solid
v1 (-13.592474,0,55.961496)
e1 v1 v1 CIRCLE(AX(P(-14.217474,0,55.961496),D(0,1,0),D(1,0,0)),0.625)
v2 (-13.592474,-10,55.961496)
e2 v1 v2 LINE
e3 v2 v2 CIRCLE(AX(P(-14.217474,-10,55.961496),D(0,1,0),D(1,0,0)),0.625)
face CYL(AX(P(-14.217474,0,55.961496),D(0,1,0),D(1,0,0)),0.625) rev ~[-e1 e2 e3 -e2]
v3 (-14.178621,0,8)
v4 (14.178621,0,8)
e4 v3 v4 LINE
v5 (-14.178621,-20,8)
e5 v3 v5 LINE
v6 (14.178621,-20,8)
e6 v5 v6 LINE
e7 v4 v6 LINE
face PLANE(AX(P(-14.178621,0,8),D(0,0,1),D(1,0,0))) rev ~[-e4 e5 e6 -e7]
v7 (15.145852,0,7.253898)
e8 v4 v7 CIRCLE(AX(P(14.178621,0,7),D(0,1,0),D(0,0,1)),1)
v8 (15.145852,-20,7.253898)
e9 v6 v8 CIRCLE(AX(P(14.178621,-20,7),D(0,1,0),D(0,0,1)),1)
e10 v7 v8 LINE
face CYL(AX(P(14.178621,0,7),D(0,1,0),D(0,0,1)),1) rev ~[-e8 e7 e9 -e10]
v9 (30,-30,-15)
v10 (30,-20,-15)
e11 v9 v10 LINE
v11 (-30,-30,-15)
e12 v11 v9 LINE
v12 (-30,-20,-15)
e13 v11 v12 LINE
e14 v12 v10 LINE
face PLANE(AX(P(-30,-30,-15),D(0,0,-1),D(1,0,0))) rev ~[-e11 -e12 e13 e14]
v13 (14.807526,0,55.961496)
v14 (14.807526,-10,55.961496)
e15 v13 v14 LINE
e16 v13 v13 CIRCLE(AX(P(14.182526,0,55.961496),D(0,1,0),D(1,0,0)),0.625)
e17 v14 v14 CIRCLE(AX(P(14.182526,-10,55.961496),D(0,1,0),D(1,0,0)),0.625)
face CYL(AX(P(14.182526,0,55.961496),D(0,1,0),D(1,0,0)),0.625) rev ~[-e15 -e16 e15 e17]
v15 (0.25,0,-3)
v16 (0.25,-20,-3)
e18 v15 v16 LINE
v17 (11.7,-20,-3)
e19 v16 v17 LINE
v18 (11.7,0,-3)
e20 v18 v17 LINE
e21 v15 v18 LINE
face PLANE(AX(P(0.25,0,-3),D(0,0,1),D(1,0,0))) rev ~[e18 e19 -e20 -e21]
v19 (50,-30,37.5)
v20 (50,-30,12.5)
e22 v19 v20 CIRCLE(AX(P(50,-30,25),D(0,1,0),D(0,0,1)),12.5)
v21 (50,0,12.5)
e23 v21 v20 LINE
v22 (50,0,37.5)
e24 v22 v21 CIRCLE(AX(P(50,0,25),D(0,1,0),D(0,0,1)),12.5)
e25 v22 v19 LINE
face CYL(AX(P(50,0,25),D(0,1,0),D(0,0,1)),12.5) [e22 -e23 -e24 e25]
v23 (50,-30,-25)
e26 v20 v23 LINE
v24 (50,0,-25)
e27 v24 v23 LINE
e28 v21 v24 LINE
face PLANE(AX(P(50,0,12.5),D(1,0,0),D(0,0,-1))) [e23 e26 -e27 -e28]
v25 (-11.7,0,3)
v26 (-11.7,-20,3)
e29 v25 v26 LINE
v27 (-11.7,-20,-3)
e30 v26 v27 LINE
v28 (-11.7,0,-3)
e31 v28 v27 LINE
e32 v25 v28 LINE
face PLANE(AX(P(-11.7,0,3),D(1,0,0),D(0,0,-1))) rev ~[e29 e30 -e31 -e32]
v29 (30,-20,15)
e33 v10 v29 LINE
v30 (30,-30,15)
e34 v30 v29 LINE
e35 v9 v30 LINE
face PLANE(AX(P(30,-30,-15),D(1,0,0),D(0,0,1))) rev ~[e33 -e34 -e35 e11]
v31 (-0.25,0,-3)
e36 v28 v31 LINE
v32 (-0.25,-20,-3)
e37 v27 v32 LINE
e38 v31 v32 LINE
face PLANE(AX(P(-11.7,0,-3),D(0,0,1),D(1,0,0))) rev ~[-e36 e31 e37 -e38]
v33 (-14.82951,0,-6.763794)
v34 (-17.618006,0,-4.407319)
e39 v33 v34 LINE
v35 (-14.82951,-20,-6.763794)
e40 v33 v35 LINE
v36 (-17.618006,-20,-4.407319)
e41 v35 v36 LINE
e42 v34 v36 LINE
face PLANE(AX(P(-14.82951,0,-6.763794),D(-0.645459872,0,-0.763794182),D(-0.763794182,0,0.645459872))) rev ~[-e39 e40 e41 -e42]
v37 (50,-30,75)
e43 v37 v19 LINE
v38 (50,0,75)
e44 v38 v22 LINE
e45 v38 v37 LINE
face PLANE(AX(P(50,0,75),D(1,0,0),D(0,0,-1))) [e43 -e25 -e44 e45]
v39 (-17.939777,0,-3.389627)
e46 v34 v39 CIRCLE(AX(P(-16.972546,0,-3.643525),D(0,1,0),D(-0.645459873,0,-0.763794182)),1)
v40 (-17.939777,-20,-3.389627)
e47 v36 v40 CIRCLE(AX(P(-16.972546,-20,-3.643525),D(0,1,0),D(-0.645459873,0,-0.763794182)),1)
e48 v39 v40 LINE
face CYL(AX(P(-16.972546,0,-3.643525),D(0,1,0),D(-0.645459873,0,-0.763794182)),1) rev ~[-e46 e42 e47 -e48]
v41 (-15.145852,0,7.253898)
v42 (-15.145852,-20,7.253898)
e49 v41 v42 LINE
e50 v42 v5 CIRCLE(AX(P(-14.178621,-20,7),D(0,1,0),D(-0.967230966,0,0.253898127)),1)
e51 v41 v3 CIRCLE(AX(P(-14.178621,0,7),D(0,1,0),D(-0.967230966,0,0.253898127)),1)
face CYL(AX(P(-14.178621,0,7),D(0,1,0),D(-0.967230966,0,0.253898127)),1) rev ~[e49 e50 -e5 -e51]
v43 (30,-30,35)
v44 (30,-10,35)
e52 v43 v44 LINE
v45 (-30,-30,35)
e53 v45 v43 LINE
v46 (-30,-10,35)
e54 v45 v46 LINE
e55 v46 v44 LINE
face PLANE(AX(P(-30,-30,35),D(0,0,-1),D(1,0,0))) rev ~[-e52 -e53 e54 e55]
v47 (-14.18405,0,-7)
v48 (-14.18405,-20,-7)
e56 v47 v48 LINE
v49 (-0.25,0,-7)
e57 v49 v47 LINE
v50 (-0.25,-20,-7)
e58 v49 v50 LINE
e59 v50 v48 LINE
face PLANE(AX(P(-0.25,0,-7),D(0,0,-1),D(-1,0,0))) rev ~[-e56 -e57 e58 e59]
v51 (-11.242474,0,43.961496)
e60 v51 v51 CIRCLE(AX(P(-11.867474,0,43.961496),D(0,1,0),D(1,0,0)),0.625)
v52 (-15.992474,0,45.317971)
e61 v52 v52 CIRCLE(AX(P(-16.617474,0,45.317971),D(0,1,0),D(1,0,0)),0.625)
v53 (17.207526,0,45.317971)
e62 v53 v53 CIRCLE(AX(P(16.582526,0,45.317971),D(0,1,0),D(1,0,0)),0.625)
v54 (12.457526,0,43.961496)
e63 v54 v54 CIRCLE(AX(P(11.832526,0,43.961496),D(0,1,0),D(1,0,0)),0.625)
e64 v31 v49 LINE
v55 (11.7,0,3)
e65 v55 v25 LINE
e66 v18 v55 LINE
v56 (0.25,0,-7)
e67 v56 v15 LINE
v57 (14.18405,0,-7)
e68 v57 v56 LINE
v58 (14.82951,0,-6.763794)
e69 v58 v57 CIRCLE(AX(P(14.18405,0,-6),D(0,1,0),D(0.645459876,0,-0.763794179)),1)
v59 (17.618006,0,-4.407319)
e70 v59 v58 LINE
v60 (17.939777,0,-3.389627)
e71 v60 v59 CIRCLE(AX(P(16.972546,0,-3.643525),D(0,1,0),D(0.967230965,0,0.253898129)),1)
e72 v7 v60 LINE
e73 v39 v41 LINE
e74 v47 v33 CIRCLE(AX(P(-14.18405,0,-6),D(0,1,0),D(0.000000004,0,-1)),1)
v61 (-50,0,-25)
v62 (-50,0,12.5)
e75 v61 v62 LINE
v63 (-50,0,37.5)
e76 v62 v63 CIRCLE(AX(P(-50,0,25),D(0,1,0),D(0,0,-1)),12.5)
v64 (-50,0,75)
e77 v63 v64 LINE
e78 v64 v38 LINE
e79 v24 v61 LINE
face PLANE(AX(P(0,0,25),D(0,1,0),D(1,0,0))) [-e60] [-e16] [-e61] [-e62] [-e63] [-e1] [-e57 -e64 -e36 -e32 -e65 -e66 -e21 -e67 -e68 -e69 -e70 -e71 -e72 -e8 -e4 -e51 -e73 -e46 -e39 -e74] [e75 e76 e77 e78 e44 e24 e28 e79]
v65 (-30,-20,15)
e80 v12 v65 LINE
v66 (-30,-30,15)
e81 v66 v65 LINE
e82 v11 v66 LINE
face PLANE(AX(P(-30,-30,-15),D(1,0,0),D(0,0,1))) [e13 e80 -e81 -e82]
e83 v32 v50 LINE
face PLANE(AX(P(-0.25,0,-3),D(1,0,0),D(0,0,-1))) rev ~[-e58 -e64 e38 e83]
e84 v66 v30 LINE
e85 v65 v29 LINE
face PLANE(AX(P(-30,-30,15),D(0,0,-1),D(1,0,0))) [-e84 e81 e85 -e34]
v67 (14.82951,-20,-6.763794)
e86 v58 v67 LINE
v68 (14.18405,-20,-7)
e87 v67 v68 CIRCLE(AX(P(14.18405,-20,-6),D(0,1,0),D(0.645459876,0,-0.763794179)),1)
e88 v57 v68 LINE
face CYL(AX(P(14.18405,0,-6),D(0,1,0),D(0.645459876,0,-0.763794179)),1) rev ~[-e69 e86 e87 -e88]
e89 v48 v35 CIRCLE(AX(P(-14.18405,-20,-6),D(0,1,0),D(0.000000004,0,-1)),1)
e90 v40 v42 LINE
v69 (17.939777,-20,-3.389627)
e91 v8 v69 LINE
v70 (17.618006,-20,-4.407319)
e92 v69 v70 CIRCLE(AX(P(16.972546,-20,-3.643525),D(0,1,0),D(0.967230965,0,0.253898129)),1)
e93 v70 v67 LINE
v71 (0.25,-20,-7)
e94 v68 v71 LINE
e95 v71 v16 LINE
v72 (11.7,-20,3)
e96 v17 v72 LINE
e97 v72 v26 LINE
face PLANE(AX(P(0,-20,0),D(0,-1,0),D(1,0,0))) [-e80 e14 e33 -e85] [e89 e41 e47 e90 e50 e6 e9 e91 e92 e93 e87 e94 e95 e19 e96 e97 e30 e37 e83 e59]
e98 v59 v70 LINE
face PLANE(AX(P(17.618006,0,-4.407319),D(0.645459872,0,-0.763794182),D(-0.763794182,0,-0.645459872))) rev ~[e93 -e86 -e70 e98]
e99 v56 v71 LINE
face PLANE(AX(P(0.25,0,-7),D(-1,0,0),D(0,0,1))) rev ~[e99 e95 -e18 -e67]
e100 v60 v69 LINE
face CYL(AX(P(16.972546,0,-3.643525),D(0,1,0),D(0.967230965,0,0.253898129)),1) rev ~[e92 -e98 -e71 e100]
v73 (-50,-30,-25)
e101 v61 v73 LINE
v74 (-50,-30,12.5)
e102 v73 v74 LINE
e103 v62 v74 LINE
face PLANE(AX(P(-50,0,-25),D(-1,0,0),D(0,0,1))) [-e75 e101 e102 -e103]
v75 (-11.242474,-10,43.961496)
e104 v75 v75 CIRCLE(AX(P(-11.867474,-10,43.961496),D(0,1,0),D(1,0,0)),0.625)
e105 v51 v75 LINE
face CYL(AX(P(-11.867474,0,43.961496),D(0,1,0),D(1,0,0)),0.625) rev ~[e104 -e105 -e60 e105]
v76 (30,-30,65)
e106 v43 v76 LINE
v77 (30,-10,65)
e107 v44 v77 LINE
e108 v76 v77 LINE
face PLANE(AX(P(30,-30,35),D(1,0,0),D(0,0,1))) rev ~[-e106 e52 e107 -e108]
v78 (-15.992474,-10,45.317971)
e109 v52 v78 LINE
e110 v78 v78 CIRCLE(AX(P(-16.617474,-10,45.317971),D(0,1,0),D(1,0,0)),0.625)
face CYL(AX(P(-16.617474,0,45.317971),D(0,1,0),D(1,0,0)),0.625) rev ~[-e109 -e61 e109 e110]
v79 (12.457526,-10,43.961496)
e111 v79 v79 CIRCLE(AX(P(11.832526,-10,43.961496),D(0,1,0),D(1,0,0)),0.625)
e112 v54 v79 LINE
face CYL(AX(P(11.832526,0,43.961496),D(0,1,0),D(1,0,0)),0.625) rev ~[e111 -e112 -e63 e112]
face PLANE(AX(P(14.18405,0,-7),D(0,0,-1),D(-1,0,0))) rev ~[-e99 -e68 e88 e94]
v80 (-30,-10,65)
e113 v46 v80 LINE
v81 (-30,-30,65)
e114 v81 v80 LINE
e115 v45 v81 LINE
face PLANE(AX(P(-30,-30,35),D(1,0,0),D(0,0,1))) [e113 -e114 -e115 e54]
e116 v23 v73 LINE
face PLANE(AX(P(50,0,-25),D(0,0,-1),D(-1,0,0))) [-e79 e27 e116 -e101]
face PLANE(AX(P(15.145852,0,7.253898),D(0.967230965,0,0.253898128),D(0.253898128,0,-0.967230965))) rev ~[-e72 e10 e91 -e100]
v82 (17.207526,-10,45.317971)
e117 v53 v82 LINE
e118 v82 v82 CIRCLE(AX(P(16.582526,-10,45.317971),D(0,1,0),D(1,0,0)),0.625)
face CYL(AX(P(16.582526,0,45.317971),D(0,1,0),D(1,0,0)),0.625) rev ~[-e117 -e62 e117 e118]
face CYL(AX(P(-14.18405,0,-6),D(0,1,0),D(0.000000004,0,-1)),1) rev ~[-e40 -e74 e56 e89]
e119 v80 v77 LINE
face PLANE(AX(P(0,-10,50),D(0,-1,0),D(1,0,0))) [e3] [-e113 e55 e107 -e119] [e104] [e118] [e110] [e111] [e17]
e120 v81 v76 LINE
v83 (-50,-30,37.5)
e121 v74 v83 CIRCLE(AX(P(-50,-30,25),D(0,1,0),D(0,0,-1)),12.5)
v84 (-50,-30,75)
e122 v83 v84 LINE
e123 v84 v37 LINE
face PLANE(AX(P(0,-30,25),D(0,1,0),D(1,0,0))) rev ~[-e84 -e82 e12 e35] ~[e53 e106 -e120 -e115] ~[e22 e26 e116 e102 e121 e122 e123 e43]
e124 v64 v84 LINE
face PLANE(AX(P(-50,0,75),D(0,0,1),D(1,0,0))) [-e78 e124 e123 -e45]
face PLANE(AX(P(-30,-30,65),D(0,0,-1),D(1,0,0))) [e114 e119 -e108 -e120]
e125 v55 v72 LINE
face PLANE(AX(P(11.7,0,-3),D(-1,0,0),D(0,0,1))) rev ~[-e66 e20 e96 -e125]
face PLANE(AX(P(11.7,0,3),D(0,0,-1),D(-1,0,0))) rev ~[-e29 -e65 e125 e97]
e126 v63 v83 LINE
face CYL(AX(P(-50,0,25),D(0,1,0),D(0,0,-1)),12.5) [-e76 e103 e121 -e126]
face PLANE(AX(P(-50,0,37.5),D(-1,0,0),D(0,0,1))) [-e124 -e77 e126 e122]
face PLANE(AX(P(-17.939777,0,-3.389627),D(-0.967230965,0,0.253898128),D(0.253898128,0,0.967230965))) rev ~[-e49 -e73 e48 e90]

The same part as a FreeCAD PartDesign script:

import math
import FreeCAD as App
import Part
import Sketcher

V = App.Vector
Q = App.Units.Quantity


def add_polygon(sketch, points):
    """Adds a closed chain of lines whose ends are joined by coincident constraints."""
    first, n = sketch.GeometryCount, len(points)
    for a, b in zip(points, points[1:] + points[:1]):
        sketch.addGeometry(Part.LineSegment(App.Vector(*a, 0), App.Vector(*b, 0)), False)
    for i in range(n):
        sketch.addConstraint(Sketcher.Constraint("Coincident", first + i, 2, first + (i + 1) % n, 1))

doc = App.newDocument("Part")
body = doc.addObject("PartDesign::Body", "Body")

sketch1 = body.newObject("Sketcher::SketchObject", "Sketch")
sketch1.AttachmentSupport = (doc.getObject("XZ_Plane"), [""])
sketch1.MapMode = "FlatFace"
sketch1.addGeometry([
    Part.LineSegment(V(-50, 75, 0), V(50, 75, 0)),
    Part.LineSegment(V(50, 75, 0), V(50, 38, 0)),
    Part.ArcOfCircle(Part.Circle(V(50, 25, 0), V(0, 0, 1), 12), math.radians(-90), math.radians(90)),
    Part.LineSegment(V(50, 12, 0), V(50, -25, 0)),
    Part.LineSegment(V(50, -25, 0), V(-50, -25, 0)),
    Part.LineSegment(V(-50, -25, 0), V(-50, 12, 0)),
    Part.ArcOfCircle(Part.Circle(V(-50, 25, 0), V(0, 0, 1), 12), math.radians(90), math.radians(270)),
    Part.LineSegment(V(-50, 38, 0), V(-50, 75, 0)),
], False)
sketch1.addConstraint([
    Sketcher.Constraint("Coincident", 0, 2, 1, 1),
    Sketcher.Constraint("Coincident", 1, 2, 2, 2),
    Sketcher.Constraint("Coincident", 2, 1, 3, 1),
    Sketcher.Constraint("Coincident", 3, 2, 4, 1),
    Sketcher.Constraint("Coincident", 4, 2, 5, 1),
    Sketcher.Constraint("Coincident", 5, 2, 6, 2),
    Sketcher.Constraint("Coincident", 6, 1, 7, 1),
    Sketcher.Constraint("Coincident", 7, 2, 0, 1),
    Sketcher.Constraint("Horizontal", 0),
    Sketcher.Constraint("Vertical", 1),
    Sketcher.Constraint("Vertical", 3),
    Sketcher.Constraint("Horizontal", 4),
    Sketcher.Constraint("Vertical", 5),
    Sketcher.Constraint("Vertical", 7),
    Sketcher.Constraint("Equal", 2, 6),
    Sketcher.Constraint("Symmetric", 2, 3, 6, 3, -2),
    Sketcher.Constraint("Vertical", 2, 3, 0, 2),
    Sketcher.Constraint("Vertical", 1, 2, 2, 1),
    Sketcher.Constraint("Vertical", 6, 3, 4, 2),
    Sketcher.Constraint("Vertical", 5, 2, 6, 1),
    Sketcher.Constraint("Equal", 1, 3),
    Sketcher.Constraint("Radius", 2, Q("12.5 mm")),
    Sketcher.Constraint("DistanceX", 0, 1, 0, 2, Q("100 mm")),
    Sketcher.Constraint("DistanceY", 1, 2, 1, 1, Q("37.5 mm")),
    Sketcher.Constraint("DistanceY", -1, 1, 2, 3, Q("25 mm")),
])
pad1 = body.newObject("PartDesign::Pad", "Pad")
pad1.Profile = sketch1
pad1.Length = 30

sketch2 = body.newObject("Sketcher::SketchObject", "Sketch001")
sketch2.AttachmentSupport = (doc.getObject("XZ_Plane"), [""])
sketch2.MapMode = "FlatFace"
sketch2.addGeometry([
    Part.LineSegment(V(-14.2, 8, 0), V(14.2, 8, 0)),
    Part.ArcOfCircle(Part.Circle(V(14.2, 7, 0), V(0, 0, 1), 1), math.radians(15), math.radians(90)),
    Part.LineSegment(V(15.1, 7.3, 0), V(17.9, -3.4, 0)),
    Part.ArcOfCircle(Part.Circle(V(17, -3.6, 0), V(0, 0, 1), 1), math.radians(-50), math.radians(15)),
    Part.LineSegment(V(17.6, -4.4, 0), V(14.8, -6.8, 0)),
    Part.ArcOfCircle(Part.Circle(V(14.2, -6, 0), V(0, 0, 1), 1), math.radians(-90), math.radians(-50)),
    Part.LineSegment(V(14.2, -7, 0), V(0.2, -7, 0)),
    Part.LineSegment(V(0.2, -7, 0), V(0.2, -3, 0)),
    Part.LineSegment(V(0.2, -3, 0), V(11.7, -3, 0)),
    Part.LineSegment(V(11.7, -3, 0), V(11.7, 3, 0)),
    Part.LineSegment(V(11.7, 3, 0), V(-11.7, 3, 0)),
    Part.LineSegment(V(-11.7, 3, 0), V(-11.7, -3, 0)),
    Part.LineSegment(V(-11.7, -3, 0), V(-0.2, -3, 0)),
    Part.LineSegment(V(-0.2, -3, 0), V(-0.2, -7, 0)),
    Part.LineSegment(V(-0.2, -7, 0), V(-14.2, -7, 0)),
    Part.ArcOfCircle(Part.Circle(V(-14.2, -6, 0), V(0, 0, 1), 1), math.radians(-130), math.radians(-90)),
    Part.LineSegment(V(-14.8, -6.8, 0), V(-17.6, -4.4, 0)),
    Part.ArcOfCircle(Part.Circle(V(-17, -3.6, 0), V(0, 0, 1), 1), math.radians(165), math.radians(230)),
    Part.LineSegment(V(-17.9, -3.4, 0), V(-15.1, 7.3, 0)),
    Part.ArcOfCircle(Part.Circle(V(-14.2, 7, 0), V(0, 0, 1), 1), math.radians(90), math.radians(165)),
], False)
sketch2.addConstraint([
    Sketcher.Constraint("Tangent", 0, 2, 1, 2),
    Sketcher.Constraint("Tangent", 1, 1, 2, 1),
    Sketcher.Constraint("Tangent", 2, 2, 3, 2),
    Sketcher.Constraint("Tangent", 3, 1, 4, 1),
    Sketcher.Constraint("Tangent", 4, 2, 5, 2),
    Sketcher.Constraint("Tangent", 5, 1, 6, 1),
    Sketcher.Constraint("Coincident", 6, 2, 7, 1),
    Sketcher.Constraint("Coincident", 7, 2, 8, 1),
    Sketcher.Constraint("Coincident", 8, 2, 9, 1),
    Sketcher.Constraint("Coincident", 9, 2, 10, 1),
    Sketcher.Constraint("Coincident", 10, 2, 11, 1),
    Sketcher.Constraint("Coincident", 11, 2, 12, 1),
    Sketcher.Constraint("Coincident", 12, 2, 13, 1),
    Sketcher.Constraint("Coincident", 13, 2, 14, 1),
    Sketcher.Constraint("Tangent", 14, 2, 15, 2),
    Sketcher.Constraint("Tangent", 15, 1, 16, 1),
    Sketcher.Constraint("Tangent", 16, 2, 17, 2),
    Sketcher.Constraint("Tangent", 17, 1, 18, 1),
    Sketcher.Constraint("Tangent", 18, 2, 19, 2),
    Sketcher.Constraint("Tangent", 19, 1, 0, 1),
    Sketcher.Constraint("Horizontal", 0),
    Sketcher.Constraint("Horizontal", 6),
    Sketcher.Constraint("Vertical", 7),
    Sketcher.Constraint("Horizontal", 8),
    Sketcher.Constraint("Vertical", 9),
    Sketcher.Constraint("Horizontal", 10),
    Sketcher.Constraint("Vertical", 11),
    Sketcher.Constraint("Horizontal", 12),
    Sketcher.Constraint("Vertical", 13),
    Sketcher.Constraint("Horizontal", 14),
    Sketcher.Constraint("Equal", 1, 3),
    Sketcher.Constraint("Equal", 3, 5),
    Sketcher.Constraint("Equal", 5, 15),
    Sketcher.Constraint("Equal", 15, 17),
    Sketcher.Constraint("Equal", 17, 19),
    Sketcher.Constraint("Symmetric", 8, 2, 10, 2, -1, 1),
    Sketcher.Constraint("Symmetric", 5, 3, 15, 3, -2),
    Sketcher.Constraint("Symmetric", 3, 3, 17, 3, -2),
    Sketcher.Constraint("Symmetric", 7, 2, 12, 2, -2),
    Sketcher.Constraint("Horizontal", 2, 2, 17, 1),
    Sketcher.Constraint("Radius", 1, Q("1 mm")),
    Sketcher.Constraint("DistanceY", 7, 1, 7, 2, Q("4 mm")),
    Sketcher.Constraint("DistanceY", 9, 1, 9, 2, Q("6 mm")),
    Sketcher.Constraint("DistanceX", 10, 2, 10, 1, Q("23.4 mm")),
    Sketcher.Constraint("DistanceY", -1, 1, 1, 3, Q("7 mm")),
    Sketcher.Constraint("DistanceX", 8, 1, 8, 2, Q("11.45 mm")),
    Sketcher.Constraint("DistanceX", 0, 1, 0, 2, Q("28.357242 mm")),
    Sketcher.Constraint("DistanceX", 6, 2, 6, 1, Q("13.93405 mm")),
    Sketcher.Constraint("DistanceY", -1, 1, 1, 1, Q("7.253898 mm")),
    Sketcher.Constraint("Distance", 2, Q("11.004119 mm")),
])
pocket1 = body.newObject("PartDesign::Pocket", "Pocket")
pocket1.Profile = sketch2
pocket1.Length = 20
pocket1.Reversed = True

sketch3 = body.newObject("Sketcher::SketchObject", "Sketch002")
sketch3.AttachmentSupport = (doc.getObject("XZ_Plane"), [""])
sketch3.MapMode = "FlatFace"
sketch3.addGeometry([
    Part.Circle(V(-14.2, 56, 0), V(0, 0, 1), 0.6),
    Part.Circle(V(14.2, 56, 0), V(0, 0, 1), 0.6),
    Part.Circle(V(-16.6, 45.3, 0), V(0, 0, 1), 0.6),
    Part.Circle(V(16.6, 45.3, 0), V(0, 0, 1), 0.6),
    Part.Circle(V(-11.9, 44, 0), V(0, 0, 1), 0.6),
    Part.Circle(V(11.8, 44, 0), V(0, 0, 1), 0.6),
], False)
sketch3.addConstraint([
    Sketcher.Constraint("Equal", 0, 1),
    Sketcher.Constraint("Equal", 1, 2),
    Sketcher.Constraint("Equal", 2, 3),
    Sketcher.Constraint("Equal", 3, 4),
    Sketcher.Constraint("Equal", 4, 5),
    Sketcher.Constraint("Horizontal", 0, 3, 1, 3),
    Sketcher.Constraint("Horizontal", 2, 3, 3, 3),
    Sketcher.Constraint("Horizontal", 4, 3, 5, 3),
    Sketcher.Constraint("Diameter", 0, Q("1.25 mm")),
    Sketcher.Constraint("DistanceY", 4, 3, 0, 3, Q("12 mm")),
    Sketcher.Constraint("DistanceX", 0, 3, 1, 3, Q("28.4 mm")),
    Sketcher.Constraint("DistanceX", 2, 3, 0, 3, Q("2.4 mm")),
    Sketcher.Constraint("DistanceX", 1, 3, 3, 3, Q("2.4 mm")),
    Sketcher.Constraint("DistanceX", 4, 3, 5, 3, Q("23.7 mm")),
    Sketcher.Constraint("DistanceX", 2, 3, 4, 3, Q("4.75 mm")),
    Sketcher.Constraint("DistanceY", -1, 1, 2, 3, Q("45.317971 mm")),
    Sketcher.Constraint("DistanceX", 0, 3, -1, 1, Q("14.217474 mm")),
    Sketcher.Constraint("DistanceY", -1, 1, 0, 3, Q("55.961496 mm")),
])
pocket2 = body.newObject("PartDesign::Pocket", "Pocket001")
pocket2.Profile = sketch3
pocket2.Length = 10
pocket2.Reversed = True

sketch4 = body.newObject("Sketcher::SketchObject", "Sketch003")
sketch4.AttachmentSupport = (doc.getObject("XZ_Plane"), [""])
sketch4.MapMode = "FlatFace"
sketch4.AttachmentOffset = App.Placement(V(0, 0, 30), App.Rotation())
add_polygon(sketch4, [(-30, 15), (-30, -15), (30, -15), (30, 15)])
sketch4.addConstraint([
    Sketcher.Constraint("Vertical", 0),
    Sketcher.Constraint("Horizontal", 1),
    Sketcher.Constraint("Vertical", 2),
    Sketcher.Constraint("Horizontal", 3),
    Sketcher.Constraint("Symmetric", 0, 2, 2, 2, -1, 1),
    Sketcher.Constraint("DistanceX", 1, 1, 1, 2, Q("60 mm")),
    Sketcher.Constraint("DistanceY", 0, 2, 0, 1, Q("30 mm")),
])
pocket3 = body.newObject("PartDesign::Pocket", "Pocket002")
pocket3.Profile = sketch4
pocket3.Length = 10

sketch5 = body.newObject("Sketcher::SketchObject", "Sketch004")
sketch5.AttachmentSupport = (doc.getObject("XZ_Plane"), [""])
sketch5.MapMode = "FlatFace"
sketch5.AttachmentOffset = App.Placement(V(0, 0, 30), App.Rotation())
add_polygon(sketch5, [(-30, 65), (-30, 35), (30, 35), (30, 65)])
sketch5.addConstraint([
    Sketcher.Constraint("Vertical", 0),
    Sketcher.Constraint("Horizontal", 1),
    Sketcher.Constraint("Vertical", 2),
    Sketcher.Constraint("Horizontal", 3),
    Sketcher.Constraint("DistanceX", 1, 1, 1, 2, Q("60 mm")),
    Sketcher.Constraint("DistanceY", 0, 2, 0, 1, Q("30 mm")),
    Sketcher.Constraint("DistanceX", 0, 2, -1, 1, Q("30 mm")),
    Sketcher.Constraint("DistanceY", -1, 1, 0, 2, Q("35 mm")),
])
pocket4 = body.newObject("PartDesign::Pocket", "Pocket003")
pocket4.Profile = sketch5
pocket4.Length = 20

doc.recompute()
